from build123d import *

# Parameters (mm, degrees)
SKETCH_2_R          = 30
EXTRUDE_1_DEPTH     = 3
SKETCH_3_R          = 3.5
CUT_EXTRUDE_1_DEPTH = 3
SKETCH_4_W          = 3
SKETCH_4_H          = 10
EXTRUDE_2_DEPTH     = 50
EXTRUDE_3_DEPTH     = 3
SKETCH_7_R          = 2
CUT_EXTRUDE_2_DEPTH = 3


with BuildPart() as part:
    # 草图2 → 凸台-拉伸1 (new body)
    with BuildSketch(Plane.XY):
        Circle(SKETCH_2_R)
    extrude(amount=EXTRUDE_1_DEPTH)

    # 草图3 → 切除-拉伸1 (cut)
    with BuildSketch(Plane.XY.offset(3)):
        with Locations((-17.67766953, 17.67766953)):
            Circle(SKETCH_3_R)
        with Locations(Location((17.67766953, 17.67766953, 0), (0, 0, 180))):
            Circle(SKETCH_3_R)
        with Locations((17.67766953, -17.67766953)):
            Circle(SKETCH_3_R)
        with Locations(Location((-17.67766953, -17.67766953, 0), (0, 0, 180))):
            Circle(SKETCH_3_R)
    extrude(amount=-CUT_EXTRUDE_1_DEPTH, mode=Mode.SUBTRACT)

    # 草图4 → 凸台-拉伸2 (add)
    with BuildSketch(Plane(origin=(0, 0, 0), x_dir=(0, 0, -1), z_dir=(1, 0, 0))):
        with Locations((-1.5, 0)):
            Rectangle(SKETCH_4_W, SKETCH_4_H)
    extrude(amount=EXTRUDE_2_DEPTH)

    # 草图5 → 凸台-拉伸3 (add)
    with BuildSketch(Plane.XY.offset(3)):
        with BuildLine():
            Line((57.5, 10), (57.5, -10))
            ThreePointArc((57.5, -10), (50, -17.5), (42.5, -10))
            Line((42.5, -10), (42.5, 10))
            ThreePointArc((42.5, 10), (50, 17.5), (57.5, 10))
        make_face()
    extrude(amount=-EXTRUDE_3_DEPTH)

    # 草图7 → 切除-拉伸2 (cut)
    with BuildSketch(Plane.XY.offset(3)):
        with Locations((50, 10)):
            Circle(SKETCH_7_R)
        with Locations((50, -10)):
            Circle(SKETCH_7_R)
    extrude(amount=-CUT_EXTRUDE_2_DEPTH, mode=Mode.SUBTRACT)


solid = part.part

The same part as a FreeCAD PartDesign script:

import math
import FreeCAD as App
import Part
import Sketcher
Q = App.Units.Quantity

doc = App.newDocument("Part")
body = doc.addObject("PartDesign::Body", "Body")

sketch1 = body.newObject("Sketcher::SketchObject", "Sketch")
sketch1.AttachmentSupport = (doc.getObject("XY_Plane"), [""])
sketch1.MapMode = "FlatFace"
sketch1.addGeometry(Part.Circle(App.Vector(0, 0, 0), App.Vector(0, 0, 1), 30), False)
sketch1.addConstraint(Sketcher.Constraint("Coincident", 0, 3, -1, 1))
sketch1.addConstraint(Sketcher.Constraint("Diameter", 0, Q("60 mm")))
pad1 = body.newObject("PartDesign::Pad", "Pad")
pad1.Profile = sketch1
pad1.Length = 3

sketch2 = body.newObject("Sketcher::SketchObject", "Sketch001")
sketch2.AttachmentSupport = (doc.getObject("XY_Plane"), [""])
sketch2.MapMode = "FlatFace"
sketch2.AttachmentOffset = App.Placement(App.Vector(0, 0, 3), App.Rotation())
sketch2.addGeometry(Part.Circle(App.Vector(-17.7, 17.7, 0), App.Vector(0, 0, 1), 3.5), False)
sketch2.addGeometry(Part.Circle(App.Vector(17.7, 17.7, 0), App.Vector(0, 0, 1), 3.5), False)
sketch2.addGeometry(Part.Circle(App.Vector(17.7, -17.7, 0), App.Vector(0, 0, 1), 3.5), False)
sketch2.addGeometry(Part.Circle(App.Vector(-17.7, -17.7, 0), App.Vector(0, 0, 1), 3.5), False)
sketch2.addConstraint(Sketcher.Constraint("Equal", 0, 1))
sketch2.addConstraint(Sketcher.Constraint("Equal", 1, 2))
sketch2.addConstraint(Sketcher.Constraint("Equal", 2, 3))
sketch2.addConstraint(Sketcher.Constraint("Symmetric", 0, 3, 2, 3, -1, 1))
sketch2.addConstraint(Sketcher.Constraint("Symmetric", 1, 3, 3, 3, -1, 1))
sketch2.addConstraint(Sketcher.Constraint("Symmetric", 0, 3, 1, 3, -2))
sketch2.addConstraint(Sketcher.Constraint("Diameter", 0, Q("7 mm")))
sketch2.addConstraint(Sketcher.Constraint("DistanceX", 0, 3, -1, 1, Q("17.67767 mm")))
sketch2.addConstraint(Sketcher.Constraint("DistanceY", -1, 1, 0, 3, Q("17.67767 mm")))
pocket1 = body.newObject("PartDesign::Pocket", "Pocket")
pocket1.Profile = sketch2
pocket1.Length = 3

sketch3 = body.newObject("Sketcher::SketchObject", "Sketch002")
sketch3.AttachmentSupport = (doc.getObject("YZ_Plane"), [""])
sketch3.MapMode = "FlatFace"
sketch3.addGeometry(Part.LineSegment(App.Vector(5, 3, 0), App.Vector(-5, 3, 0)), False)
sketch3.addGeometry(Part.LineSegment(App.Vector(-5, 3, 0), App.Vector(-5, 0, 0)), False)
sketch3.addGeometry(Part.LineSegment(App.Vector(-5, 0, 0), App.Vector(5, 0, 0)), False)
sketch3.addGeometry(Part.LineSegment(App.Vector(5, 0, 0), App.Vector(5, 3, 0)), False)
sketch3.addConstraint(Sketcher.Constraint("Coincident", 0, 2, 1, 1))
sketch3.addConstraint(Sketcher.Constraint("Coincident", 1, 2, 2, 1))
sketch3.addConstraint(Sketcher.Constraint("Coincident", 2, 2, 3, 1))
sketch3.addConstraint(Sketcher.Constraint("Coincident", 3, 2, 0, 1))
sketch3.addConstraint(Sketcher.Constraint("Horizontal", 0))
sketch3.addConstraint(Sketcher.Constraint("Vertical", 1))
sketch3.addConstraint(Sketcher.Constraint("Horizontal", 2))
sketch3.addConstraint(Sketcher.Constraint("Vertical", 3))
sketch3.addConstraint(Sketcher.Constraint("Symmetric", 1, 2, 2, 2, -1, 1))
sketch3.addConstraint(Sketcher.Constraint("DistanceX", 0, 2, 0, 1, Q("10 mm")))
sketch3.addConstraint(Sketcher.Constraint("DistanceY", 1, 2, 1, 1, Q("3 mm")))
pad2 = body.newObject("PartDesign::Pad", "Pad001")
pad2.Profile = sketch3
pad2.Length = 50

sketch4 = body.newObject("Sketcher::SketchObject", "Sketch003")
sketch4.AttachmentSupport = (doc.getObject("XY_Plane"), [""])
sketch4.MapMode = "FlatFace"
sketch4.AttachmentOffset = App.Placement(App.Vector(0, 0, 3), App.Rotation())
sketch4.addGeometry(Part.LineSegment(App.Vector(58, -10, 0), App.Vector(58, 10, 0)), False)
sketch4.addGeometry(Part.ArcOfCircle(Part.Circle(App.Vector(50, 10, 0), App.Vector(0, 0, 1), 8), math.radians(0), math.radians(180)), False)
sketch4.addGeometry(Part.LineSegment(App.Vector(42, 10, 0), App.Vector(42, -10, 0)), False)
sketch4.addGeometry(Part.ArcOfCircle(Part.Circle(App.Vector(50, -10, 0), App.Vector(0, 0, 1), 8), math.radians(180), math.radians(360)), False)
sketch4.addConstraint(Sketcher.Constraint("Tangent", 0, 2, 1, 1))
sketch4.addConstraint(Sketcher.Constraint("Tangent", 1, 2, 2, 1))
sketch4.addConstraint(Sketcher.Constraint("Tangent", 2, 2, 3, 1))
sketch4.addConstraint(Sketcher.Constraint("Tangent", 3, 2, 0, 1))
sketch4.addConstraint(Sketcher.Constraint("Vertical", 0))
sketch4.addConstraint(Sketcher.Constraint("Vertical", 2))
sketch4.addConstraint(Sketcher.Constraint("Radius", 1, Q("7.5 mm")))
sketch4.addConstraint(Sketcher.Constraint("DistanceY", 0, 1, 0, 2, Q("20 mm")))
sketch4.addConstraint(Sketcher.Constraint("DistanceX", -1, 1, 1, 3, Q("50 mm")))
sketch4.addConstraint(Sketcher.Constraint("DistanceY", -1, 1, 1, 3, Q("10 mm")))
pad3 = body.newObject("PartDesign::Pad", "Pad002")
pad3.Profile = sketch4
pad3.Length = 3
pad3.Reversed = True

sketch5 = body.newObject("Sketcher::SketchObject", "Sketch004")
sketch5.AttachmentSupport = (doc.getObject("XY_Plane"), [""])
sketch5.MapMode = "FlatFace"
sketch5.AttachmentOffset = App.Placement(App.Vector(0, 0, 3), App.Rotation())
sketch5.addGeometry(Part.Circle(App.Vector(50, 10, 0), App.Vector(0, 0, 1), 2), False)
sketch5.addGeometry(Part.Circle(App.Vector(50, -10, 0), App.Vector(0, 0, 1), 2), False)
sketch5.addConstraint(Sketcher.Constraint("Equal", 0, 1))
sketch5.addConstraint(Sketcher.Constraint("Symmetric", 0, 3, 1, 3, -1))
sketch5.addConstraint(Sketcher.Constraint("Diameter", 0, Q("4 mm")))
sketch5.addConstraint(Sketcher.Constraint("DistanceX", -1, 1, 0, 3, Q("50 mm")))
sketch5.addConstraint(Sketcher.Constraint("DistanceY", -1, 1, 0, 3, Q("10 mm")))
pocket2 = body.newObject("PartDesign::Pocket", "Pocket001")
pocket2.Profile = sketch5
pocket2.Length = 3

doc.recompute()
